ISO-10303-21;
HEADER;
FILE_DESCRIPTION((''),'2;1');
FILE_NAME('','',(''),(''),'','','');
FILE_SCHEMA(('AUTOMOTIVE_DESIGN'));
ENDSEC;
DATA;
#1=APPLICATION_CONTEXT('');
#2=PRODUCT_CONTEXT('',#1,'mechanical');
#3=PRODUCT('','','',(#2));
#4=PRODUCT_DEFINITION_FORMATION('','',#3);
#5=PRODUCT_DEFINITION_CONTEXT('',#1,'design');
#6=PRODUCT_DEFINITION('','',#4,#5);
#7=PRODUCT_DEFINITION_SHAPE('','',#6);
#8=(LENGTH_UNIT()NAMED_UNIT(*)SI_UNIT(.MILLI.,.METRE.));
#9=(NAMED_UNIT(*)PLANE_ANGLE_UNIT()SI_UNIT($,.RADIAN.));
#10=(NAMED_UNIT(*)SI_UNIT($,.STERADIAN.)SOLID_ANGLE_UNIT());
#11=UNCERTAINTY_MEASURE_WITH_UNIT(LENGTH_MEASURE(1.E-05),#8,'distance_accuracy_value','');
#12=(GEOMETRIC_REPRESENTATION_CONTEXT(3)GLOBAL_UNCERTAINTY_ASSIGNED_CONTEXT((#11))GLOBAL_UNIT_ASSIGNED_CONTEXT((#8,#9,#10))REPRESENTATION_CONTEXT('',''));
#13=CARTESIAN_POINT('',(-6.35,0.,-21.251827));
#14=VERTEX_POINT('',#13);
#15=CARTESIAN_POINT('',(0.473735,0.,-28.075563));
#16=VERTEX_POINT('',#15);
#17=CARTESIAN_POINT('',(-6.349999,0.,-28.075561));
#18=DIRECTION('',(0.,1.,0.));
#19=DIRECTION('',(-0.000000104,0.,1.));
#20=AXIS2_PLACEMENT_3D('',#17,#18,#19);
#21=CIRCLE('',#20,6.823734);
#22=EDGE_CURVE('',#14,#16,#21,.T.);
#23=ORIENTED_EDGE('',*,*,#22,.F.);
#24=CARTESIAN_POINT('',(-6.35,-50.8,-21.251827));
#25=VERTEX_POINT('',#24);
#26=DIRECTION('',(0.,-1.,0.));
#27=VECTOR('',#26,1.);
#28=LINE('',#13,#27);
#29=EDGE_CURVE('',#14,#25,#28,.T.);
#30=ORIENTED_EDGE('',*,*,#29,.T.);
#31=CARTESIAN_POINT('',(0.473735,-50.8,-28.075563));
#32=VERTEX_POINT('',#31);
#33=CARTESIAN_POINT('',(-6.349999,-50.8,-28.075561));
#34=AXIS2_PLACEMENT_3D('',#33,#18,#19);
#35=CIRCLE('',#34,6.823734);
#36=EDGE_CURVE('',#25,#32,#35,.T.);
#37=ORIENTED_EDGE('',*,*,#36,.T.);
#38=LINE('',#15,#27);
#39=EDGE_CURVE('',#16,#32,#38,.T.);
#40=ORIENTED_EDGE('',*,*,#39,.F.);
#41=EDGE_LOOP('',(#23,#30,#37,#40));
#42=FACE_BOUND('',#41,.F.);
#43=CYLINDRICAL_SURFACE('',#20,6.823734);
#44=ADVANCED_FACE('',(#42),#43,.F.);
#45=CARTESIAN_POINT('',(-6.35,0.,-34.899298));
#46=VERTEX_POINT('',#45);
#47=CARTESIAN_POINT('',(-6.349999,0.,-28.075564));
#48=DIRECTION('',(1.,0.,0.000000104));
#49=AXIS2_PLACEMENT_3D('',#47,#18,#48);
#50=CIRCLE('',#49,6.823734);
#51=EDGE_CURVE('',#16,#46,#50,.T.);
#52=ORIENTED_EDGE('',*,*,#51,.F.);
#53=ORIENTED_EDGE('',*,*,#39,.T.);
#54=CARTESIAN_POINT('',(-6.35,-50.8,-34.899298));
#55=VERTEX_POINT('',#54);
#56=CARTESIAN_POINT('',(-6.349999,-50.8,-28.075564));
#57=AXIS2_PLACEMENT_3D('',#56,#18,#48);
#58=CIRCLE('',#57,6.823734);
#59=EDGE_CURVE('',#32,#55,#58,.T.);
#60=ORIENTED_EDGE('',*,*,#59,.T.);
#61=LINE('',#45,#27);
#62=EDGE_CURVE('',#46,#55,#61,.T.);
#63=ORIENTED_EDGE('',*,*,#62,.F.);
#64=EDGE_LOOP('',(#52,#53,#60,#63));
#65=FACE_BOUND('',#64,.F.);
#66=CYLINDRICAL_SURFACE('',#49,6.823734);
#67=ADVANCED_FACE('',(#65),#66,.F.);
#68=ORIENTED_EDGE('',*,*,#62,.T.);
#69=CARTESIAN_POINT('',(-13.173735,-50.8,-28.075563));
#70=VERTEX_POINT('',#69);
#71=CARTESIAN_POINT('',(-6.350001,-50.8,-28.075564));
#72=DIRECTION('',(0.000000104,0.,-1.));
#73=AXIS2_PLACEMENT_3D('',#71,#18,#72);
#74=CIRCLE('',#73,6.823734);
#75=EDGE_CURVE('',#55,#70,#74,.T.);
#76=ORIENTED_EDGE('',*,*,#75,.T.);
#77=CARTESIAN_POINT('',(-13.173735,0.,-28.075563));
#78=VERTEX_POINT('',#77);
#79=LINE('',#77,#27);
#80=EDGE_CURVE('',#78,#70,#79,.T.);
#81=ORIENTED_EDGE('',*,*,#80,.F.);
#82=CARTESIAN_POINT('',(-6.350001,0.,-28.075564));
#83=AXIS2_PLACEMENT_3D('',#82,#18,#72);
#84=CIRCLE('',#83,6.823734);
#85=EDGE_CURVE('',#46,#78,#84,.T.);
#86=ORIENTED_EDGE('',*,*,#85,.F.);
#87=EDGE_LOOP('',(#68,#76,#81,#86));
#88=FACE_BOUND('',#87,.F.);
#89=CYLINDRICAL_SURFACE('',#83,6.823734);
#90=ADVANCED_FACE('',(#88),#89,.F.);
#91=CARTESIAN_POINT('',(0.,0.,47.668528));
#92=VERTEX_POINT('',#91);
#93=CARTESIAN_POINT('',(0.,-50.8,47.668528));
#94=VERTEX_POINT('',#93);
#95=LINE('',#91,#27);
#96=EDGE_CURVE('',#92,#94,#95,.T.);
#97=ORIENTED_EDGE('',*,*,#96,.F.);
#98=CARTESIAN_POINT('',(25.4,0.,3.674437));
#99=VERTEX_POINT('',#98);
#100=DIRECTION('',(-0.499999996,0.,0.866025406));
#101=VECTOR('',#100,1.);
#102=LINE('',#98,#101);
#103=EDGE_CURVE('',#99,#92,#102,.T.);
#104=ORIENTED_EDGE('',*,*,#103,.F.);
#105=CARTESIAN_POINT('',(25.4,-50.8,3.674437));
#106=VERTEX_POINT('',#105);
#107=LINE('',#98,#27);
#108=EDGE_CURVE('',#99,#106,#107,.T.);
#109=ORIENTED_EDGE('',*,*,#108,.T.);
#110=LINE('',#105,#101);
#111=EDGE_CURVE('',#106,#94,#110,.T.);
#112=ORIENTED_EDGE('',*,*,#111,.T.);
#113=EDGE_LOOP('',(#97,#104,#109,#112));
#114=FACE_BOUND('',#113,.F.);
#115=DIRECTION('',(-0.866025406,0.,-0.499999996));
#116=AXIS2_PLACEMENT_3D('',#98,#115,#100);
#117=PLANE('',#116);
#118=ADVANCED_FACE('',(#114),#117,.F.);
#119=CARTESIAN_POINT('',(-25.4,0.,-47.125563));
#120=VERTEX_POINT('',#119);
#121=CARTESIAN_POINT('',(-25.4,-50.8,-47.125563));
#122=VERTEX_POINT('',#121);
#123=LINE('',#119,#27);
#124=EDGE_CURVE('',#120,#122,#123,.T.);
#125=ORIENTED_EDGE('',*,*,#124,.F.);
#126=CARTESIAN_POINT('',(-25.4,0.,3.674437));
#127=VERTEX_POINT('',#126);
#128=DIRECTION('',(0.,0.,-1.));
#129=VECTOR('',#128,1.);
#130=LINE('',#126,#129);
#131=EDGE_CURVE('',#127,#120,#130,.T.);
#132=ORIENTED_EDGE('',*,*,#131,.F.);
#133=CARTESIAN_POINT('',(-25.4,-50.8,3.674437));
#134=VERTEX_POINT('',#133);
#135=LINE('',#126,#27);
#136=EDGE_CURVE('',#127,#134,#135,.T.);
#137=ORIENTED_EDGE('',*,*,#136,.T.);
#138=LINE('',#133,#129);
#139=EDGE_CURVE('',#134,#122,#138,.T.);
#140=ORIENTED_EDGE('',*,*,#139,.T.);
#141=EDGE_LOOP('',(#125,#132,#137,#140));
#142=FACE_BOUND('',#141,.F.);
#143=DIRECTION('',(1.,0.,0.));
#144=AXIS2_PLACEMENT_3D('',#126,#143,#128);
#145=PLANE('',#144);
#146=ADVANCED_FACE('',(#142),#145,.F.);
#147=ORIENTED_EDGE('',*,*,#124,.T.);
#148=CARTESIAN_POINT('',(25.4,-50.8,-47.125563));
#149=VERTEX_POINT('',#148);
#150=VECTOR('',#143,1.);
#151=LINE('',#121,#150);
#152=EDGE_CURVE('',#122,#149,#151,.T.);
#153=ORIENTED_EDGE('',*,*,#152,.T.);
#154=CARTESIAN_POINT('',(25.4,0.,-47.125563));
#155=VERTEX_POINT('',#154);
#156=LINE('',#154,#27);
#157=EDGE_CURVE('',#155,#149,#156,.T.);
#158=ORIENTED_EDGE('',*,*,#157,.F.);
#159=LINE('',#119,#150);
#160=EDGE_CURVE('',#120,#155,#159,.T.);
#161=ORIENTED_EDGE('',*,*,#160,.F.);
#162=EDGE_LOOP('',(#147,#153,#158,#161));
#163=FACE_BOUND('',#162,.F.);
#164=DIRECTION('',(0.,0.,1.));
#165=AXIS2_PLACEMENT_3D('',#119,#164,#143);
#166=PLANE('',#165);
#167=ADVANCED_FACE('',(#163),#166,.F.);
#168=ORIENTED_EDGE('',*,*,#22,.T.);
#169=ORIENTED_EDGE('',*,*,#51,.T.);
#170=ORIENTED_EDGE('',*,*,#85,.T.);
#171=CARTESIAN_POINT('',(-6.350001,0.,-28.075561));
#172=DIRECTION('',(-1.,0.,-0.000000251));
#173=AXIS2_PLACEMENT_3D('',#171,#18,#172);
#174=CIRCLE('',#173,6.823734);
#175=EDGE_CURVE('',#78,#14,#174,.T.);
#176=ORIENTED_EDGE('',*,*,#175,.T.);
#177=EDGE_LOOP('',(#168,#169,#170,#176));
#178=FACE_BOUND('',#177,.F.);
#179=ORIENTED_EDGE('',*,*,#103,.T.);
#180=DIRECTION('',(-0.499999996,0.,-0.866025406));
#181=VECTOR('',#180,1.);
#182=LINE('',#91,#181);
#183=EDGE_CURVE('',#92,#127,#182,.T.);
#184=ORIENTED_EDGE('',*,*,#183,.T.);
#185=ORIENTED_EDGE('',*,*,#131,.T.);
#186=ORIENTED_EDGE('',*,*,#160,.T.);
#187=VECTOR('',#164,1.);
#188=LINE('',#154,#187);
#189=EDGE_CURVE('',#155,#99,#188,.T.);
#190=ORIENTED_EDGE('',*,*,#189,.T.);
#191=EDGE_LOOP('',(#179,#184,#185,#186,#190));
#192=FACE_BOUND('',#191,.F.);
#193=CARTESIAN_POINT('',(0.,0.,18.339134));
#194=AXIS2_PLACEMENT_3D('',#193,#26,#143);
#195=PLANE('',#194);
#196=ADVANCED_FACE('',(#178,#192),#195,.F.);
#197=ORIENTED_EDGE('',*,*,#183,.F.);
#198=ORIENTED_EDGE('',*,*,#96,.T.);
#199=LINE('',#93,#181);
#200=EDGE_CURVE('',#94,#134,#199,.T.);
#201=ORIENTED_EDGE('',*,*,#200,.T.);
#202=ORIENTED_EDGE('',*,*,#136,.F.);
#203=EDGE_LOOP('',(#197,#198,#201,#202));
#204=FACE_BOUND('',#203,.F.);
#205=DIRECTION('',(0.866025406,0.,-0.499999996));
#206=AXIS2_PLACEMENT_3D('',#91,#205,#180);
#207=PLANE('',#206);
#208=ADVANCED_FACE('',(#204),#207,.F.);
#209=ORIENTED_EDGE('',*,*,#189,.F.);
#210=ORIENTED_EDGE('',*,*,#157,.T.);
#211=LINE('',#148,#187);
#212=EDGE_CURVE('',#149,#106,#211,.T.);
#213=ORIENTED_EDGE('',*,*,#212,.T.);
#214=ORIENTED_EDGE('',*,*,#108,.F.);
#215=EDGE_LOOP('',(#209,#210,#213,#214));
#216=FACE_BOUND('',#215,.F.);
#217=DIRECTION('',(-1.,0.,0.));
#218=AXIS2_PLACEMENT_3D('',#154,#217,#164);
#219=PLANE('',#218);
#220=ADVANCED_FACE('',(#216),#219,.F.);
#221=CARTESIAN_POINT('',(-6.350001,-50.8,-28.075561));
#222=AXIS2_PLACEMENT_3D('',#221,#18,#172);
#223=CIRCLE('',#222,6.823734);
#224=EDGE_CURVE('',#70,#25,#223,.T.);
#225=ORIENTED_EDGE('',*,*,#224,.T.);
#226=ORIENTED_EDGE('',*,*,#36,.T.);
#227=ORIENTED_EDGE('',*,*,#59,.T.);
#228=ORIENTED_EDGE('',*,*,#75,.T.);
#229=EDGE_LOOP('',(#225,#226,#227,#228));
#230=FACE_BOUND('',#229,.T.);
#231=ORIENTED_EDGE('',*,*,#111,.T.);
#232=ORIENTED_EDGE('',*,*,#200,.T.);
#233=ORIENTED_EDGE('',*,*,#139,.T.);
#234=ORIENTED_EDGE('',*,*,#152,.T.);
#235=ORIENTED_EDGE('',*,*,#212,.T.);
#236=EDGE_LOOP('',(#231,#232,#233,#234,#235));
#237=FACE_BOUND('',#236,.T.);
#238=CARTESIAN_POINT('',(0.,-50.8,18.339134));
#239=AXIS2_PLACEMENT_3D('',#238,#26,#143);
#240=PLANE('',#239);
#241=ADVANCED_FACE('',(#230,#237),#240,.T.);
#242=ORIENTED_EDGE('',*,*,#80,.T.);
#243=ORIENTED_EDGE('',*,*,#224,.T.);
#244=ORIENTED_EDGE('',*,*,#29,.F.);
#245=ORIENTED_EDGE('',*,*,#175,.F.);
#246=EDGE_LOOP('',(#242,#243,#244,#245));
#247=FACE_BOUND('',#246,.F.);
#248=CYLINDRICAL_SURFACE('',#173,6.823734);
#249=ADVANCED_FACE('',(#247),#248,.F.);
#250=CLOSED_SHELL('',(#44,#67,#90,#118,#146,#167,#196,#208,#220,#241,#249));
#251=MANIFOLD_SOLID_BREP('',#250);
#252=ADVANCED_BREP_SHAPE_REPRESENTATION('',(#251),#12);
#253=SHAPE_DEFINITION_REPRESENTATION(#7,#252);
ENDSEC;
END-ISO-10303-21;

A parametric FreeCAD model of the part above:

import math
import FreeCAD as App
import Part
import Sketcher
Q = App.Units.Quantity

doc = App.newDocument("Part")
body = doc.addObject("PartDesign::Body", "Body")

# Sketch on XZ plane
sketch1 = body.newObject("Sketcher::SketchObject", "Sketch")
sketch1.AttachmentSupport = (doc.getObject("XZ_Plane"), [""])
sketch1.MapMode = "FlatFace"
sketch1.addGeometry(Part.LineSegment(App.Vector(0, 48, 0), App.Vector(-25, 4, 0)), False)
sketch1.addGeometry(Part.LineSegment(App.Vector(-25, 4, 0), App.Vector(-25, -47, 0)), False)
sketch1.addGeometry(Part.LineSegment(App.Vector(-25, -47, 0), App.Vector(25, -47, 0)), False)
sketch1.addGeometry(Part.LineSegment(App.Vector(25, -47, 0), App.Vector(25, 4, 0)), False)
sketch1.addGeometry(Part.LineSegment(App.Vector(25, 4, 0), App.Vector(0, 48, 0)), False)
sketch1.addGeometry(Part.ArcOfCircle(Part.Circle(App.Vector(-6, -28, 0), App.Vector(0, 0, 1), 7), math.radians(180), math.radians(270)), False)
sketch1.addGeometry(Part.ArcOfCircle(Part.Circle(App.Vector(-6, -28, 0), App.Vector(0, 0, 1), 7), math.radians(90), math.radians(180)), False)
sketch1.addGeometry(Part.ArcOfCircle(Part.Circle(App.Vector(-6, -28, 0), App.Vector(0, 0, 1), 7), math.radians(0), math.radians(90)), False)
sketch1.addGeometry(Part.ArcOfCircle(Part.Circle(App.Vector(-6, -28, 0), App.Vector(0, 0, 1), 7), math.radians(-90), math.radians(0)), False)
sketch1.addConstraint(Sketcher.Constraint("Coincident", 0, 2, 1, 1))
sketch1.addConstraint(Sketcher.Constraint("Coincident", 1, 2, 2, 1))
sketch1.addConstraint(Sketcher.Constraint("Coincident", 2, 2, 3, 1))
sketch1.addConstraint(Sketcher.Constraint("Coincident", 3, 2, 4, 1))
sketch1.addConstraint(Sketcher.Constraint("Coincident", 4, 2, 0, 1))
sketch1.addConstraint(Sketcher.Constraint("Tangent", 5, 1, 6, 2))
sketch1.addConstraint(Sketcher.Constraint("Tangent", 6, 1, 7, 2))
sketch1.addConstraint(Sketcher.Constraint("Tangent", 7, 1, 8, 2))
sketch1.addConstraint(Sketcher.Constraint("Tangent", 8, 1, 5, 2))
sketch1.addConstraint(Sketcher.Constraint("Vertical", 1))
sketch1.addConstraint(Sketcher.Constraint("Horizontal", 2))
sketch1.addConstraint(Sketcher.Constraint("Vertical", 3))
sketch1.addConstraint(Sketcher.Constraint("Equal", 5, 6))
sketch1.addConstraint(Sketcher.Constraint("Symmetric", 0, 2, 3, 2, -2))
sketch1.addConstraint(Sketcher.Constraint("PointOnObject", 4, 2, -2))
sketch1.addConstraint(Sketcher.Constraint("Horizontal", 8, 3, 5, 1))
sketch1.addConstraint(Sketcher.Constraint("Horizontal", 5, 1, 7, 1))
sketch1.addConstraint(Sketcher.Constraint("Vertical", 8, 3, 6, 1))
sketch1.addConstraint(Sketcher.Constraint("Vertical", 6, 1, 8, 1))
sketch1.addConstraint(Sketcher.Constraint("Equal", 2, 1))
sketch1.addConstraint(Sketcher.Constraint("DistanceX", 2, 1, 2, 2, Q("2 in")))
sketch1.addConstraint(Sketcher.Constraint("Distance", 0, Q("2 in")))
sketch1.addConstraint(Sketcher.Constraint("DistanceX", 5, 3, -1, 1, Q("0.25 in")))
sketch1.addConstraint(Sketcher.Constraint("DistanceY", 6, 3, 0, 2, Q("1.2499999 in")))
sketch1.addConstraint(Sketcher.Constraint("Radius", 5, 6.823734))
sketch1.addConstraint(Sketcher.Constraint("DistanceY", 6, 3, -1, 1, 28.075561))
pad1 = body.newObject("PartDesign::Pad", "Pad")
pad1.Profile = sketch1
pad1.Length = Q("2 in")

doc.recompute()
